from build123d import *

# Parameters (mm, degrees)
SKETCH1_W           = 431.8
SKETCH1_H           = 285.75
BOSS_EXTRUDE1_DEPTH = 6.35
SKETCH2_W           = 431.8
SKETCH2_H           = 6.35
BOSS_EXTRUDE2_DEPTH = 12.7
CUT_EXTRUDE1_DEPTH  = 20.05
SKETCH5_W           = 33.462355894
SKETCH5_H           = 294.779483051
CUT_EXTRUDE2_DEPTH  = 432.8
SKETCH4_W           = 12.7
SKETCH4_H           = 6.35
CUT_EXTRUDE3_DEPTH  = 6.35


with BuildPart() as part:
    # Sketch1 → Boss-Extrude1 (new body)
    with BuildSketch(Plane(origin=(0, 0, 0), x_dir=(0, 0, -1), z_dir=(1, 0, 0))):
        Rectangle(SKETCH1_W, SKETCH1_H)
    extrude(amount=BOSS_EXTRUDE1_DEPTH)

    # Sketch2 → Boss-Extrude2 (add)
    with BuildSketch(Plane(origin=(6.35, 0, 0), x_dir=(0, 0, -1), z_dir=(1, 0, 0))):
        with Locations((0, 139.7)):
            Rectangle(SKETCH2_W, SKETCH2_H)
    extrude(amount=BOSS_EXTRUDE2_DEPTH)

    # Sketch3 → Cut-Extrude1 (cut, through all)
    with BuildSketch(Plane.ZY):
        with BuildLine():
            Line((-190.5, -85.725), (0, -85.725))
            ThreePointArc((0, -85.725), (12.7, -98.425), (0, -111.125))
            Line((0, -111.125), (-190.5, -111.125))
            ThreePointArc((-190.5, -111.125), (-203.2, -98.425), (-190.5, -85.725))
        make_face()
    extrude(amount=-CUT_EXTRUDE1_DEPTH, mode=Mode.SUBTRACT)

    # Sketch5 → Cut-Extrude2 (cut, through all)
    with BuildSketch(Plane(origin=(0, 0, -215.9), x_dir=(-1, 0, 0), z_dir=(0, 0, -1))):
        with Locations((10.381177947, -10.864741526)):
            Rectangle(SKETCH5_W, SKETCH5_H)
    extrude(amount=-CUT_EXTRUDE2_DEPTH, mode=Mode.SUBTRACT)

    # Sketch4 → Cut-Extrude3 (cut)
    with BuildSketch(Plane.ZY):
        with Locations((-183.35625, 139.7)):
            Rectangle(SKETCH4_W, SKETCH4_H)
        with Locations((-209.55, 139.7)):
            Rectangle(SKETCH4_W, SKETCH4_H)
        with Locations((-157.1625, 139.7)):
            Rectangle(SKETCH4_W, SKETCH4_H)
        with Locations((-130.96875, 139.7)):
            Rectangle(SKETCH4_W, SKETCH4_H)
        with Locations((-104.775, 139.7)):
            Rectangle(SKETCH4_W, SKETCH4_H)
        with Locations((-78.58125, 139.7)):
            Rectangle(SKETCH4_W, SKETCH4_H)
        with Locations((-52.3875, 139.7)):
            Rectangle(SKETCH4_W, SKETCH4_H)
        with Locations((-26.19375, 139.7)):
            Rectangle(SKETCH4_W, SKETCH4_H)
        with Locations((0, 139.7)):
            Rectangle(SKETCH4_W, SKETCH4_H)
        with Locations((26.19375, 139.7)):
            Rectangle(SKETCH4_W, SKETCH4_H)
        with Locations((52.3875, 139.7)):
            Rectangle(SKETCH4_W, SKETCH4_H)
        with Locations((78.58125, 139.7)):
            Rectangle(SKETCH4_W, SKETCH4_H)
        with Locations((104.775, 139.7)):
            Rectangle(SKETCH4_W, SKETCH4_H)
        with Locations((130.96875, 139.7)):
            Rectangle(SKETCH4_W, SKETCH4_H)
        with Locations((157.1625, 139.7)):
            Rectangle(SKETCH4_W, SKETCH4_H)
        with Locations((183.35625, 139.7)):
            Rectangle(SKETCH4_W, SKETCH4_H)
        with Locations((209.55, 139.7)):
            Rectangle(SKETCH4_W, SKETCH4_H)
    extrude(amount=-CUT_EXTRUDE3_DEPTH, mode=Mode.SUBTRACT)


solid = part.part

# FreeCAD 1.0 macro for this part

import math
import FreeCAD as App
import Part
import Sketcher
from FreeCAD import Vector
Q = App.Units.Quantity


def add_polygon(sketch, points):
    """Adds a closed chain of lines whose ends are joined by coincident constraints."""
    first, n = sketch.GeometryCount, len(points)
    for a, b in zip(points, points[1:] + points[:1]):
        sketch.addGeometry(Part.LineSegment(App.Vector(*a, 0), App.Vector(*b, 0)), False)
    for i in range(n):
        sketch.addConstraint(Sketcher.Constraint("Coincident", first + i, 2, first + (i + 1) % n, 1))

doc = App.newDocument("Part")
params = doc.addObject("Spreadsheet::Sheet", "Params")
for row, (alias, value) in enumerate([
    ("sketch1_height", "17 in"),
    ("sketch1_width", "11.25 in"),
    ("pad1_length", "0.25 in"),
    ("sketch2_height", "17 in"),
    ("sketch2_width", "0.25 in"),
    ("pad2_length", "0.5 in"),
    ("sketch3_radius", "0.5 in"),
    ("sketch3_height", "7.5 in"),
    ("sketch5_height", "0.5 in"),
    ("sketch5_width", "0.25 in"),
    ("pocket3_length", "0.25 in"),
], start=1):
    params.set(f"A{row}", alias)
    params.set(f"B{row}", "=" + value)
    params.setAlias(f"B{row}", alias)

body = doc.addObject("PartDesign::Body", "Body")

# Sketch on YZ plane
sketch1 = body.newObject("Sketcher::SketchObject", "Sketch")
sketch1.AttachmentSupport = (doc.getObject("YZ_Plane"), [""])
sketch1.MapMode = "FlatFace"
add_polygon(sketch1, [(142.875, 215.9), (-142.875, 215.9), (-142.875, -215.9), (142.875, -215.9)])  # lines 0-3
sketch1.addConstraint(Sketcher.Constraint("Horizontal", 0))
sketch1.addConstraint(Sketcher.Constraint("Vertical", 1))
sketch1.addConstraint(Sketcher.Constraint("Horizontal", 2))
sketch1.addConstraint(Sketcher.Constraint("Vertical", 3))
sketch1.addConstraint(Sketcher.Constraint("Symmetric", 0, 2, 2, 2, -1, 1))
sketch1.addConstraint(Sketcher.Constraint("DistanceY", 1, 2, 1, 1, Q("17 in")))
sketch1.addConstraint(Sketcher.Constraint("DistanceX", 0, 2, 0, 1, Q("11.25 in")))
sketch1.setExpression("Constraints[9]", "Params.sketch1_height")
sketch1.setExpression("Constraints[10]", "Params.sketch1_width")
pad1 = body.newObject("PartDesign::Pad", "Pad")
pad1.Profile = sketch1
pad1.setExpression("Length", "Params.pad1_length")

# Sketch on YZ plane
sketch2 = body.newObject("Sketcher::SketchObject", "Sketch001")
sketch2.AttachmentSupport = (doc.getObject("YZ_Plane"), [""])
sketch2.MapMode = "FlatFace"
sketch2.AttachmentOffset = App.Placement(Vector(0, 0, 0.25 * 25.4), App.Rotation())
add_polygon(sketch2, [(142.875, 215.9), (136.525, 215.9), (136.525, -215.9), (142.875, -215.9)])  # lines 0-3
sketch2.addConstraint(Sketcher.Constraint("Horizontal", 0))
sketch2.addConstraint(Sketcher.Constraint("Vertical", 1))
sketch2.addConstraint(Sketcher.Constraint("Horizontal", 2))
sketch2.addConstraint(Sketcher.Constraint("Vertical", 3))
sketch2.addConstraint(Sketcher.Constraint("DistanceY", 1, 2, 1, 1, Q("17 in")))
sketch2.addConstraint(Sketcher.Constraint("DistanceX", 0, 2, 0, 1, Q("0.25 in")))
sketch2.addConstraint(Sketcher.Constraint("DistanceY", -1, 1, 0, 2, Q("8.5 in")))
sketch2.addConstraint(Sketcher.Constraint("DistanceX", -1, 1, 0, 2, Q("5.375 in")))
sketch2.setExpression("Constraints[8]", "Params.sketch2_height")
sketch2.setExpression("Constraints[9]", "Params.sketch2_width")
pad2 = body.newObject("PartDesign::Pad", "Pad001")
pad2.Profile = sketch2
pad2.setExpression("Length", "Params.pad2_length")

# Sketch on YZ plane
sketch3 = body.newObject("Sketcher::SketchObject", "Sketch002")
sketch3.AttachmentSupport = (doc.getObject("YZ_Plane"), [""])
sketch3.MapMode = "FlatFace"
sketch3.addGeometry(Part.LineSegment(Vector(-85.725, 0, 0), Vector(-85.725, -190.5, 0)), False)
sketch3.addGeometry(Part.ArcOfCircle(Part.Circle(Vector(-98.425, -190.5, 0), Vector(0, 0, 1), 12.7), math.radians(180), math.radians(360)), False)
sketch3.addGeometry(Part.LineSegment(Vector(-111.125, -190.5, 0), Vector(-111.125, 0, 0)), False)
sketch3.addGeometry(Part.ArcOfCircle(Part.Circle(Vector(-98.425, 0, 0), Vector(0, 0, 1), 12.7), math.radians(0), math.radians(180)), False)
sketch3.addConstraint(Sketcher.Constraint("Tangent", 0, 2, 1, 2))
sketch3.addConstraint(Sketcher.Constraint("Tangent", 1, 1, 2, 1))
sketch3.addConstraint(Sketcher.Constraint("Tangent", 2, 2, 3, 2))
sketch3.addConstraint(Sketcher.Constraint("Tangent", 3, 1, 0, 1))
sketch3.addConstraint(Sketcher.Constraint("Vertical", 0))
sketch3.addConstraint(Sketcher.Constraint("Vertical", 2))
sketch3.addConstraint(Sketcher.Constraint("PointOnObject", 3, 3, -1))
sketch3.addConstraint(Sketcher.Constraint("Radius", 1, Q("0.5 in")))
sketch3.addConstraint(Sketcher.Constraint("DistanceY", 0, 2, 0, 1, Q("7.5 in")))
sketch3.addConstraint(Sketcher.Constraint("DistanceX", 1, 3, -1, 1, Q("3.875 in")))
sketch3.setExpression("Constraints[7]", "Params.sketch3_radius")
sketch3.setExpression("Constraints[8]", "Params.sketch3_height")
pocket1 = body.newObject("PartDesign::Pocket", "Pocket")
pocket1.Profile = sketch3
pocket1.Type = "ThroughAll"
pocket1.Reversed = True

# Sketch on XY plane
sketch4 = body.newObject("Sketcher::SketchObject", "Sketch003")
sketch4.AttachmentSupport = (doc.getObject("XY_Plane"), [""])
sketch4.MapMode = "FlatFace"
sketch4.AttachmentOffset = App.Placement(Vector(0, 0, -8.5 * 25.4), App.Rotation())
add_polygon(sketch4, [(6.35, 136.525), (6.35, -158.254483), (-27.112356, -158.254483), (-27.112356, 136.525)])  # lines 0-3
sketch4.addConstraint(Sketcher.Constraint("Vertical", 0))
sketch4.addConstraint(Sketcher.Constraint("Horizontal", 1))
sketch4.addConstraint(Sketcher.Constraint("Vertical", 2))
sketch4.addConstraint(Sketcher.Constraint("Horizontal", 3))
sketch4.addConstraint(Sketcher.Constraint("DistanceX", -1, 1, 0, 2, Q("0.25 in")))
sketch4.addConstraint(Sketcher.Constraint("DistanceY", -1, 1, 2, 2, Q("5.375 in")))
sketch4.addConstraint(Sketcher.Constraint("DistanceX", 1, 2, 1, 1, Q("33.462356 mm")))
sketch4.addConstraint(Sketcher.Constraint("DistanceY", 0, 2, 0, 1, Q("294.779483 mm")))
pocket2 = body.newObject("PartDesign::Pocket", "Pocket001")
pocket2.Profile = sketch4
pocket2.Type = "ThroughAll"
pocket2.Reversed = True

# Sketch on YZ plane
sketch5 = body.newObject("Sketcher::SketchObject", "Sketch004")
sketch5.AttachmentSupport = (doc.getObject("YZ_Plane"), [""])
sketch5.MapMode = "FlatFace"
add_polygon(sketch5, [(142.875, -189.70625), (136.525, -189.70625), (136.525, -177.00625), (142.875, -177.00625)])  # lines 0-3
add_polygon(sketch5, [(142.875, -215.9), (136.525, -215.9), (136.525, -203.2), (142.875, -203.2)])  # lines 4-7
add_polygon(sketch5, [(142.875, -163.5125), (136.525, -163.5125), (136.525, -150.8125), (142.875, -150.8125)])  # lines 8-11
add_polygon(sketch5, [(142.875, -137.31875), (136.525, -137.31875), (136.525, -124.61875), (142.875, -124.61875)])  # lines 12-15
add_polygon(sketch5, [(142.875, -111.125), (136.525, -111.125), (136.525, -98.425), (142.875, -98.425)])  # lines 16-19
add_polygon(sketch5, [(142.875, -84.93125), (136.525, -84.93125), (136.525, -72.23125), (142.875, -72.23125)])  # lines 20-23
add_polygon(sketch5, [(142.875, -58.7375), (136.525, -58.7375), (136.525, -46.0375), (142.875, -46.0375)])  # lines 24-27
add_polygon(sketch5, [(142.875, -32.54375), (136.525, -32.54375), (136.525, -19.84375), (142.875, -19.84375)])  # lines 28-31
add_polygon(sketch5, [(142.875, -6.35), (136.525, -6.35), (136.525, 6.35), (142.875, 6.35)])  # lines 32-35
add_polygon(sketch5, [(142.875, 19.84375), (136.525, 19.84375), (136.525, 32.54375), (142.875, 32.54375)])  # lines 36-39
add_polygon(sketch5, [(142.875, 46.0375), (136.525, 46.0375), (136.525, 58.7375), (142.875, 58.7375)])  # lines 40-43
add_polygon(sketch5, [(142.875, 72.23125), (136.525, 72.23125), (136.525, 84.93125), (142.875, 84.93125)])  # lines 44-47
add_polygon(sketch5, [(142.875, 98.425), (136.525, 98.425), (136.525, 111.125), (142.875, 111.125)])  # lines 48-51
add_polygon(sketch5, [(142.875, 124.61875), (136.525, 124.61875), (136.525, 137.31875), (142.875, 137.31875)])  # lines 52-55
add_polygon(sketch5, [(142.875, 150.8125), (136.525, 150.8125), (136.525, 163.5125), (142.875, 163.5125)])  # lines 56-59
add_polygon(sketch5, [(142.875, 177.00625), (136.525, 177.00625), (136.525, 189.70625), (142.875, 189.70625)])  # lines 60-63
add_polygon(sketch5, [(142.875, 203.2), (136.525, 203.2), (136.525, 215.9), (142.875, 215.9)])  # lines 64-67
sketch5.addConstraint(Sketcher.Constraint("Horizontal", 0))
sketch5.addConstraint(Sketcher.Constraint("Vertical", 1))
sketch5.addConstraint(Sketcher.Constraint("Horizontal", 2))
sketch5.addConstraint(Sketcher.Constraint("Vertical", 3))
sketch5.addConstraint(Sketcher.Constraint("Horizontal", 4))
sketch5.addConstraint(Sketcher.Constraint("Vertical", 5))
sketch5.addConstraint(Sketcher.Constraint("Horizontal", 6))
sketch5.addConstraint(Sketcher.Constraint("Vertical", 7))
sketch5.addConstraint(Sketcher.Constraint("Horizontal", 8))
sketch5.addConstraint(Sketcher.Constraint("Vertical", 9))
sketch5.addConstraint(Sketcher.Constraint("Horizontal", 10))
sketch5.addConstraint(Sketcher.Constraint("Vertical", 11))
sketch5.addConstraint(Sketcher.Constraint("Horizontal", 12))
sketch5.addConstraint(Sketcher.Constraint("Vertical", 13))
sketch5.addConstraint(Sketcher.Constraint("Horizontal", 14))
sketch5.addConstraint(Sketcher.Constraint("Vertical", 15))
sketch5.addConstraint(Sketcher.Constraint("Horizontal", 16))
sketch5.addConstraint(Sketcher.Constraint("Vertical", 17))
sketch5.addConstraint(Sketcher.Constraint("Horizontal", 18))
sketch5.addConstraint(Sketcher.Constraint("Vertical", 19))
sketch5.addConstraint(Sketcher.Constraint("Horizontal", 20))
sketch5.addConstraint(Sketcher.Constraint("Vertical", 21))
sketch5.addConstraint(Sketcher.Constraint("Horizontal", 22))
sketch5.addConstraint(Sketcher.Constraint("Vertical", 23))
sketch5.addConstraint(Sketcher.Constraint("Horizontal", 24))
sketch5.addConstraint(Sketcher.Constraint("Vertical", 25))
sketch5.addConstraint(Sketcher.Constraint("Horizontal", 26))
sketch5.addConstraint(Sketcher.Constraint("Vertical", 27))
sketch5.addConstraint(Sketcher.Constraint("Horizontal", 28))
sketch5.addConstraint(Sketcher.Constraint("Vertical", 29))
sketch5.addConstraint(Sketcher.Constraint("Horizontal", 30))
sketch5.addConstraint(Sketcher.Constraint("Vertical", 31))
sketch5.addConstraint(Sketcher.Constraint("Horizontal", 32))
sketch5.addConstraint(Sketcher.Constraint("Vertical", 33))
sketch5.addConstraint(Sketcher.Constraint("Horizontal", 34))
sketch5.addConstraint(Sketcher.Constraint("Vertical", 35))
sketch5.addConstraint(Sketcher.Constraint("Horizontal", 36))
sketch5.addConstraint(Sketcher.Constraint("Vertical", 37))
sketch5.addConstraint(Sketcher.Constraint("Horizontal", 38))
sketch5.addConstraint(Sketcher.Constraint("Vertical", 39))
sketch5.addConstraint(Sketcher.Constraint("Horizontal", 40))
sketch5.addConstraint(Sketcher.Constraint("Vertical", 41))
sketch5.addConstraint(Sketcher.Constraint("Horizontal", 42))
sketch5.addConstraint(Sketcher.Constraint("Vertical", 43))
sketch5.addConstraint(Sketcher.Constraint("Horizontal", 44))
sketch5.addConstraint(Sketcher.Constraint("Vertical", 45))
sketch5.addConstraint(Sketcher.Constraint("Horizontal", 46))
sketch5.addConstraint(Sketcher.Constraint("Vertical", 47))
sketch5.addConstraint(Sketcher.Constraint("Horizontal", 48))
sketch5.addConstraint(Sketcher.Constraint("Vertical", 49))
sketch5.addConstraint(Sketcher.Constraint("Horizontal", 50))
sketch5.addConstraint(Sketcher.Constraint("Vertical", 51))
sketch5.addConstraint(Sketcher.Constraint("Horizontal", 52))
sketch5.addConstraint(Sketcher.Constraint("Vertical", 53))
sketch5.addConstraint(Sketcher.Constraint("Horizontal", 54))
sketch5.addConstraint(Sketcher.Constraint("Vertical", 55))
sketch5.addConstraint(Sketcher.Constraint("Horizontal", 56))
sketch5.addConstraint(Sketcher.Constraint("Vertical", 57))
sketch5.addConstraint(Sketcher.Constraint("Horizontal", 58))
sketch5.addConstraint(Sketcher.Constraint("Vertical", 59))
sketch5.addConstraint(Sketcher.Constraint("Horizontal", 60))
sketch5.addConstraint(Sketcher.Constraint("Vertical", 61))
sketch5.addConstraint(Sketcher.Constraint("Horizontal", 62))
sketch5.addConstraint(Sketcher.Constraint("Vertical", 63))
sketch5.addConstraint(Sketcher.Constraint("Horizontal", 64))
sketch5.addConstraint(Sketcher.Constraint("Vertical", 65))
sketch5.addConstraint(Sketcher.Constraint("Horizontal", 66))
sketch5.addConstraint(Sketcher.Constraint("Vertical", 67))
sketch5.addConstraint(Sketcher.Constraint("Symmetric", 29, 2, 36, 2, -1))
sketch5.addConstraint(Sketcher.Constraint("Symmetric", 31, 2, 38, 2, -1))
sketch5.addConstraint(Sketcher.Constraint("Symmetric", 25, 2, 40, 2, -1))
sketch5.addConstraint(Sketcher.Constraint("Symmetric", 27, 2, 42, 2, -1))
sketch5.addConstraint(Sketcher.Constraint("Symmetric", 21, 2, 44, 2, -1))
sketch5.addConstraint(Sketcher.Constraint("Symmetric", 23, 2, 46, 2, -1))
sketch5.addConstraint(Sketcher.Constraint("Symmetric", 17, 2, 48, 2, -1))
sketch5.addConstraint(Sketcher.Constraint("Symmetric", 19, 2, 50, 2, -1))
sketch5.addConstraint(Sketcher.Constraint("Symmetric", 13, 2, 52, 2, -1))
sketch5.addConstraint(Sketcher.Constraint("Symmetric", 15, 2, 54, 2, -1))
sketch5.addConstraint(Sketcher.Constraint("Symmetric", 9, 2, 56, 2, -1))
sketch5.addConstraint(Sketcher.Constraint("Symmetric", 11, 2, 58, 2, -1))
sketch5.addConstraint(Sketcher.Constraint("Symmetric", 1, 2, 60, 2, -1))
sketch5.addConstraint(Sketcher.Constraint("Symmetric", 3, 2, 62, 2, -1))
sketch5.addConstraint(Sketcher.Constraint("Symmetric", 5, 2, 64, 2, -1))
sketch5.addConstraint(Sketcher.Constraint("Symmetric", 7, 2, 66, 2, -1))
sketch5.addConstraint(Sketcher.Constraint("Vertical", 1, 2, 4, 2))
sketch5.addConstraint(Sketcher.Constraint("Vertical", 3, 2, 6, 2))
sketch5.addConstraint(Sketcher.Constraint("Vertical", 5, 2, 8, 2))
sketch5.addConstraint(Sketcher.Constraint("Vertical", 7, 2, 10, 2))
sketch5.addConstraint(Sketcher.Constraint("Vertical", 9, 2, 12, 2))
sketch5.addConstraint(Sketcher.Constraint("Vertical", 11, 2, 14, 2))
sketch5.addConstraint(Sketcher.Constraint("Vertical", 13, 2, 16, 2))
sketch5.addConstraint(Sketcher.Constraint("Vertical", 15, 2, 18, 2))
sketch5.addConstraint(Sketcher.Constraint("Vertical", 17, 2, 20, 2))
sketch5.addConstraint(Sketcher.Constraint("Vertical", 19, 2, 22, 2))
sketch5.addConstraint(Sketcher.Constraint("Vertical", 21, 2, 24, 2))
sketch5.addConstraint(Sketcher.Constraint("Vertical", 23, 2, 26, 2))
sketch5.addConstraint(Sketcher.Constraint("Vertical", 25, 2, 28, 2))
sketch5.addConstraint(Sketcher.Constraint("Vertical", 27, 2, 30, 2))
sketch5.addConstraint(Sketcher.Constraint("Vertical", 29, 2, 32, 2))
sketch5.addConstraint(Sketcher.Constraint("Vertical", 31, 2, 34, 2))
sketch5.addConstraint(Sketcher.Constraint("Equal", 3, 5))
sketch5.addConstraint(Sketcher.Constraint("Equal", 7, 9))
sketch5.addConstraint(Sketcher.Constraint("Equal", 11, 13))
sketch5.addConstraint(Sketcher.Constraint("Equal", 15, 17))
sketch5.addConstraint(Sketcher.Constraint("Equal", 19, 21))
sketch5.addConstraint(Sketcher.Constraint("Equal", 23, 25))
sketch5.addConstraint(Sketcher.Constraint("Equal", 27, 29))
sketch5.addConstraint(Sketcher.Constraint("Equal", 31, 33))
sketch5.addConstraint(Sketcher.Constraint("DistanceY", 1, 1, 1, 2, Q("0.5 in")))
sketch5.addConstraint(Sketcher.Constraint("DistanceY", 5, 2, -1, 1, Q("8 in")))
sketch5.addConstraint(Sketcher.Constraint("DistanceX", 0, 2, 0, 1, Q("0.25 in")))
sketch5.addConstraint(Sketcher.Constraint("DistanceY", 32, 2, -1, 1, Q("0.25 in")))
sketch5.addConstraint(Sketcher.Constraint("DistanceX", -1, 1, 0, 2, Q("5.375 in")))
sketch5.addConstraint(Sketcher.Constraint("DistanceY", 0, 2, -1, 1, Q("7.46875 in")))
sketch5.addConstraint(Sketcher.Constraint("DistanceY", 8, 2, -1, 1, Q("6.4375 in")))
sketch5.addConstraint(Sketcher.Constraint("DistanceY", 12, 2, -1, 1, Q("5.40625 in")))
sketch5.addConstraint(Sketcher.Constraint("DistanceY", 16, 2, -1, 1, Q("4.375 in")))
sketch5.addConstraint(Sketcher.Constraint("DistanceY", 20, 2, -1, 1, Q("3.34375 in")))
sketch5.addConstraint(Sketcher.Constraint("DistanceY", 24, 2, -1, 1, Q("2.3125 in")))
sketch5.addConstraint(Sketcher.Constraint("DistanceY", 28, 2, -1, 1, Q("1.28125 in")))
sketch5.setExpression("Constraints[176]", "Params.sketch5_height")
sketch5.setExpression("Constraints[178]", "Params.sketch5_width")
pocket3 = body.newObject("PartDesign::Pocket", "Pocket002")
pocket3.Profile = sketch5
pocket3.setExpression("Length", "Params.pocket3_length")
pocket3.Reversed = True

doc.recompute()
